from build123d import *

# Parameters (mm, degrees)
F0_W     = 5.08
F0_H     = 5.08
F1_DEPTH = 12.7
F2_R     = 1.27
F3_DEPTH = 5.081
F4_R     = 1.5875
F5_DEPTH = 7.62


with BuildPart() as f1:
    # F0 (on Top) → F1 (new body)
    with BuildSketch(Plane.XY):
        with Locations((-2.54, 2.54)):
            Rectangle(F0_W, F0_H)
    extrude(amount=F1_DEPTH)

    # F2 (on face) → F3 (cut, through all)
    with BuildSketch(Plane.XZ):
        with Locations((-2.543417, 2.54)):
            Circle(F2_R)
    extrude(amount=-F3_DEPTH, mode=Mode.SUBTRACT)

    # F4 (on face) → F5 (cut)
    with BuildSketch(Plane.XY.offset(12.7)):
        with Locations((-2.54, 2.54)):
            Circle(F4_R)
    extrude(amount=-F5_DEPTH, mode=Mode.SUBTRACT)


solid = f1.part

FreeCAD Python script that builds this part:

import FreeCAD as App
import Part
import Sketcher
from FreeCAD import Vector
Q = App.Units.Quantity

doc = App.newDocument("Part")
body = doc.addObject("PartDesign::Body", "Body")

sketch1 = body.newObject("Sketcher::SketchObject", "Sketch")
sketch1.AttachmentSupport = (doc.getObject("XY_Plane"), [""])
sketch1.MapMode = "FlatFace"
sketch1.addGeometry([
    Part.LineSegment(Vector(-5, 5, 0), Vector(-5, 0, 0)),
    Part.LineSegment(Vector(-5, 0, 0), Vector(0, 0, 0)),
    Part.LineSegment(Vector(0, 0, 0), Vector(0, 5, 0)),
    Part.LineSegment(Vector(0, 5, 0), Vector(-5, 5, 0)),
], False)
sketch1.addConstraint([
    Sketcher.Constraint("Coincident", 0, 2, 1, 1),
    Sketcher.Constraint("Coincident", 1, 2, 2, 1),
    Sketcher.Constraint("Coincident", 2, 2, 3, 1),
    Sketcher.Constraint("Coincident", 3, 2, 0, 1),
    Sketcher.Constraint("Vertical", 0),
    Sketcher.Constraint("Horizontal", 1),
    Sketcher.Constraint("Vertical", 2),
    Sketcher.Constraint("Horizontal", 3),
    Sketcher.Constraint("Coincident", 1, 2, -1, 1),
    Sketcher.Constraint("Equal", 3, 0),
    Sketcher.Constraint("DistanceX", 1, 1, 1, 2, Q("0.2 in")),
])
pad1 = body.newObject("PartDesign::Pad", "Pad")
pad1.Profile = sketch1
pad1.Length = Q("0.5 in")

sketch2 = body.newObject("Sketcher::SketchObject", "Sketch001")
sketch2.AttachmentSupport = (doc.getObject("XZ_Plane"), [""])
sketch2.MapMode = "FlatFace"
sketch2.addGeometry(Part.Circle(Vector(-2.5, 2.5, 0), Vector(0, 0, 1), 1.3), False)
sketch2.addConstraint([
    Sketcher.Constraint("Diameter", 0, Q("0.1 in")),
    Sketcher.Constraint("DistanceY", -1, 1, 0, 3, Q("0.1 in")),
    Sketcher.Constraint("DistanceX", 0, 3, -1, 1, Q("2.543417 mm")),
])
pocket1 = body.newObject("PartDesign::Pocket", "Pocket")
pocket1.Profile = sketch2
pocket1.Type = "ThroughAll"

sketch3 = body.newObject("Sketcher::SketchObject", "Sketch002")
sketch3.AttachmentSupport = (doc.getObject("XY_Plane"), [""])
sketch3.MapMode = "FlatFace"
sketch3.AttachmentOffset = App.Placement(Vector(0, 0, 0.5 * 25.4), App.Rotation())
sketch3.addGeometry(Part.Circle(Vector(-2.5, 2.5, 0), Vector(0, 0, 1), 1.6), False)
sketch3.addConstraint([
    Sketcher.Constraint("Diameter", 0, Q("0.125 in")),
    Sketcher.Constraint("DistanceX", 0, 3, -1, 1, Q("0.1 in")),
    Sketcher.Constraint("DistanceY", -1, 1, 0, 3, Q("0.1 in")),
])
pocket2 = body.newObject("PartDesign::Pocket", "Pocket001")
pocket2.Profile = sketch3
pocket2.Length = Q("0.3 in")

doc.recompute()
